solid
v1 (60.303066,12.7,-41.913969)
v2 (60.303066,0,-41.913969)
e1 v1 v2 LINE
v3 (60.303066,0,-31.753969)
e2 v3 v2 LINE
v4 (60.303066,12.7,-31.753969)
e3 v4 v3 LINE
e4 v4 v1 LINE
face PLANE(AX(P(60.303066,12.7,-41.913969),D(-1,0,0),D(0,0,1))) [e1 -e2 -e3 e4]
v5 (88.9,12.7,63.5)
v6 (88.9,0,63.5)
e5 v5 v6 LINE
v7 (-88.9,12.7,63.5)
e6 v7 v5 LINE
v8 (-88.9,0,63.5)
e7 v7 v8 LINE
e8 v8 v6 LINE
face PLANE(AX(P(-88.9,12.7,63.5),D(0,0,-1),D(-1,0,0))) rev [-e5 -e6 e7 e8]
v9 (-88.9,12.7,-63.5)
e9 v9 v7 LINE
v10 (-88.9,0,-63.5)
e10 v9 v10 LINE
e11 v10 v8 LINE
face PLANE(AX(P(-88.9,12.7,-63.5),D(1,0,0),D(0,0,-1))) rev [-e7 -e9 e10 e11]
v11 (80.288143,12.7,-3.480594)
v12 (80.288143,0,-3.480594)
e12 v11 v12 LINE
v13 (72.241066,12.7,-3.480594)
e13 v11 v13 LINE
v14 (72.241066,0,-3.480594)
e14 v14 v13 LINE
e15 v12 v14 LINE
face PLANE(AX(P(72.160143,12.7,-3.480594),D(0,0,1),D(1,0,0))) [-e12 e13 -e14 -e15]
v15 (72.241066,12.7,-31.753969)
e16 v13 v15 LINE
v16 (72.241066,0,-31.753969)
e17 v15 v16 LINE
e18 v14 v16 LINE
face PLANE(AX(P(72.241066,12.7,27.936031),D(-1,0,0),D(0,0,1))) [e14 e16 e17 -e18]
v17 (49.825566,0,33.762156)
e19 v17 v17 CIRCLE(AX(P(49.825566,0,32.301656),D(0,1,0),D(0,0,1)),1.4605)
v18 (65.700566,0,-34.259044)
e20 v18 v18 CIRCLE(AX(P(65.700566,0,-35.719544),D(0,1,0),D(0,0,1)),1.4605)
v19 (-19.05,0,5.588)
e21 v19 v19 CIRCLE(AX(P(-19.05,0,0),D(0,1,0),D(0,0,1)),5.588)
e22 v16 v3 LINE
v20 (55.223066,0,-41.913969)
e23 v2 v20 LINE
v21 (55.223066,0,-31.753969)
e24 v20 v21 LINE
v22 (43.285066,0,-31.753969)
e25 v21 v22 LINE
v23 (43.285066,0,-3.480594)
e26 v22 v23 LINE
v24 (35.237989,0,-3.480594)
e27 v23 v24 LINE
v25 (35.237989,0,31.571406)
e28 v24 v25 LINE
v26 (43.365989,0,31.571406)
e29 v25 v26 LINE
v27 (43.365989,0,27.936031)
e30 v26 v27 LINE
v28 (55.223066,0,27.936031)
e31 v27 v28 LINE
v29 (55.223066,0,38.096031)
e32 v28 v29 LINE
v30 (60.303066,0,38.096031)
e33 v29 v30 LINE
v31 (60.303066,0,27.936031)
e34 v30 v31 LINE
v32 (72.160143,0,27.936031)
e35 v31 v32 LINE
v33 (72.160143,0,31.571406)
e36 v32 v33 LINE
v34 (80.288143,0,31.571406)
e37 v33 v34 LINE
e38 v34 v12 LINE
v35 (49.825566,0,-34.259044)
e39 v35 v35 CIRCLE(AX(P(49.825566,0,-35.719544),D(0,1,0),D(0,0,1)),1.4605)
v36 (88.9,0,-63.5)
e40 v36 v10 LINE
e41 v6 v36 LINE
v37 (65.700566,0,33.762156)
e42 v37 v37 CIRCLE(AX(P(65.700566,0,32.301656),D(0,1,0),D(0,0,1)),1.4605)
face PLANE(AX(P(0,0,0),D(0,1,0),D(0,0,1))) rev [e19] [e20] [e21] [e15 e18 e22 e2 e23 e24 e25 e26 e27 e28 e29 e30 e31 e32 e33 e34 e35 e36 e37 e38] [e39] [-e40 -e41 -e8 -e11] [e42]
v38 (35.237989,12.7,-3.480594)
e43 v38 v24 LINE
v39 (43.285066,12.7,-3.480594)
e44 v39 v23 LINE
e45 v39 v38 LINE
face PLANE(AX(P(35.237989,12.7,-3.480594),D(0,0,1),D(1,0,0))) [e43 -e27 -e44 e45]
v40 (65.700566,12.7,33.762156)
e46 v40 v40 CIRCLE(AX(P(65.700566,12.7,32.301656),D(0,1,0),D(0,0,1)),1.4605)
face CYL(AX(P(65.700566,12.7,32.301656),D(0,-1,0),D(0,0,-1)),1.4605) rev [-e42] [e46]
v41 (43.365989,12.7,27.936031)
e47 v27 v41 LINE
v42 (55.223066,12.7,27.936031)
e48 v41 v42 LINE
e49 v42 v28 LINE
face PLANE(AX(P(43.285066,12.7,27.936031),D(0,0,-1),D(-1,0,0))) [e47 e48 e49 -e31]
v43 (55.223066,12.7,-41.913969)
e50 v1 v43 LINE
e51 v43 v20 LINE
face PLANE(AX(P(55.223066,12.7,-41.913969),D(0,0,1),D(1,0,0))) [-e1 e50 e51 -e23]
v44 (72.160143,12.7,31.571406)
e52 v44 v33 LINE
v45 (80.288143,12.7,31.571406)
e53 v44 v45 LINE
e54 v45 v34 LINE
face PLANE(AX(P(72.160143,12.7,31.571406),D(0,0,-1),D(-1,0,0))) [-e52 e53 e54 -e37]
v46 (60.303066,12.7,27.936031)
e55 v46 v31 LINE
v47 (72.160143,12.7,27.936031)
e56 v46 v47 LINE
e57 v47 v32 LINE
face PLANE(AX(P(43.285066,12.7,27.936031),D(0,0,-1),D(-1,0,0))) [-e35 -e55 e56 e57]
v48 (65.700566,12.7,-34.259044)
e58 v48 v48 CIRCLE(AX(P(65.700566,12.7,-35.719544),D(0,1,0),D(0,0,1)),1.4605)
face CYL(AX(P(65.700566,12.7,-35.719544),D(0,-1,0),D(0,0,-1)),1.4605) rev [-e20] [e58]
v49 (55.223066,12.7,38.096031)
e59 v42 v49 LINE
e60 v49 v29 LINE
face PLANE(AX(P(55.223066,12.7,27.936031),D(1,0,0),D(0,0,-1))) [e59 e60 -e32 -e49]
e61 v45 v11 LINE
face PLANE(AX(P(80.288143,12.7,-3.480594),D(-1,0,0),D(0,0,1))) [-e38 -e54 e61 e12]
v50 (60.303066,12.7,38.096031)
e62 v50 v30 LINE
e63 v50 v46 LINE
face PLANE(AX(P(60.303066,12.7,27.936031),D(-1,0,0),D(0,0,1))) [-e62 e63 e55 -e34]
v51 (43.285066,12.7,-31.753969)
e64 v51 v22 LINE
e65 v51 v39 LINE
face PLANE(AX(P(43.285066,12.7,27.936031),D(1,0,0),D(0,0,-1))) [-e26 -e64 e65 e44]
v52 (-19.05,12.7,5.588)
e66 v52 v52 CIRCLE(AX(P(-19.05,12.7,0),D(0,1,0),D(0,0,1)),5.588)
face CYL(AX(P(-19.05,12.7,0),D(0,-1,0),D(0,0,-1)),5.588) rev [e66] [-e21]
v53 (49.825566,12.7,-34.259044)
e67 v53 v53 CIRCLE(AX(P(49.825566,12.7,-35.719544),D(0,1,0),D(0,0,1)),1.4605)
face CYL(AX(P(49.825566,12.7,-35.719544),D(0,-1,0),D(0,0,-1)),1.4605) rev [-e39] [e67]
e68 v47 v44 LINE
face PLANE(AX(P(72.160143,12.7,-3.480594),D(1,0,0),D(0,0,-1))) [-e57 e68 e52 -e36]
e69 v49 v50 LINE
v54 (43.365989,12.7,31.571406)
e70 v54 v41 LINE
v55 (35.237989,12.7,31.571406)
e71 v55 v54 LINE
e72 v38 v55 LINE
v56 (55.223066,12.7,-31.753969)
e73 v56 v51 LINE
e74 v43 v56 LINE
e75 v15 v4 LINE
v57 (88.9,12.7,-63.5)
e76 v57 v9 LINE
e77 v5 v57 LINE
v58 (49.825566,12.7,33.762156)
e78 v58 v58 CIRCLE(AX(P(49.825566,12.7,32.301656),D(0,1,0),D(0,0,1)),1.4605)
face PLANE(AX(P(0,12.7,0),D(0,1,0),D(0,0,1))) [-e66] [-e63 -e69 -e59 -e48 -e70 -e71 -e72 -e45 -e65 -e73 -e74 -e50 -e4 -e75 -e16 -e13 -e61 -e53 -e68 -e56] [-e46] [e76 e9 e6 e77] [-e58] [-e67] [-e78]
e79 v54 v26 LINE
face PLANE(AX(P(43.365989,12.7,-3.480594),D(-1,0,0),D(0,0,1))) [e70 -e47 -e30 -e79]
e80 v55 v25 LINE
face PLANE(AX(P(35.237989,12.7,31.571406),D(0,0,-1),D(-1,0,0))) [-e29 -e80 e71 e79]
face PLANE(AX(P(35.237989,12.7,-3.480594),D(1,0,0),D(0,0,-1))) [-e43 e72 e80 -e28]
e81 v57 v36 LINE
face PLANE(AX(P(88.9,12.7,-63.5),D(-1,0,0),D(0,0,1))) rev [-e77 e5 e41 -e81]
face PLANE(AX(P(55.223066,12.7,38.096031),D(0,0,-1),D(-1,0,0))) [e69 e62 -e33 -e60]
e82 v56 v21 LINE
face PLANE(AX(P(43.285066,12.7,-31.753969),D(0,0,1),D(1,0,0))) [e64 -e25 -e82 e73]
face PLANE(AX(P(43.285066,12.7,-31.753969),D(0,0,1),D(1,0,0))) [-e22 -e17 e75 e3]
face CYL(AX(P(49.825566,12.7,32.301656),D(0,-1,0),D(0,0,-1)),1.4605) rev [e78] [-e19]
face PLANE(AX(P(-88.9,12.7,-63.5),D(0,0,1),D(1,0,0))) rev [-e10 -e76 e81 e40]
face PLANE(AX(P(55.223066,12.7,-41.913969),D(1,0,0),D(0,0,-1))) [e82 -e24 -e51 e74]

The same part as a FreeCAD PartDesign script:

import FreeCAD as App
import Part
import Sketcher

V = App.Vector
Q = App.Units.Quantity


def add_polygon(sketch, points):
    """Adds a closed chain of lines whose ends are joined by coincident constraints."""
    first, n = sketch.GeometryCount, len(points)
    for a, b in zip(points, points[1:] + points[:1]):
        sketch.addGeometry(Part.LineSegment(App.Vector(*a, 0), App.Vector(*b, 0)), False)
    for i in range(n):
        sketch.addConstraint(Sketcher.Constraint("Coincident", first + i, 2, first + (i + 1) % n, 1))

doc = App.newDocument("Part")
params = doc.addObject("Spreadsheet::Sheet", "Params")
for row, (alias, value) in enumerate([
    ("sketch1_diameter", "0.44 in"),
    ("sketch1_width", "7 in"),
    ("sketch1_height", "5 in"),
    ("sketch1_diameter2", "0.115 in"),
    ("sketch1_width2", "1.14 in"),
    ("pad1_length", "0.5 in"),
    ("sketch2_width", "0.2 in"),
    ("sketch2_height", "0.4 in"),
    ("sketch2_width2", "0.32 in"),
    ("sketch2_height2", "1.38 in"),
], start=1):
    params.set(f"A{row}", alias)
    params.set(f"B{row}", "=" + value)
    params.setAlias(f"B{row}", alias)

body = doc.addObject("PartDesign::Body", "Body")

sketch1 = body.newObject("Sketcher::SketchObject", "Sketch")
sketch1.AttachmentSupport = (doc.getObject("XZ_Plane"), [""])
sketch1.MapMode = "FlatFace"
add_polygon(sketch1, [(-88.9, -63.5), (-88.9, 63.5), (88.9, 63.5), (88.9, -63.5)])
sketch1.addGeometry(Part.Circle(V(-19.1, 0, 0), V(0, 0, 1), 5.6), False)
sketch1.addGeometry(Part.Circle(V(49.8, 32.3, 0), V(0, 0, 1), 1.5), False)
sketch1.addGeometry(Part.Circle(V(65.7, 32.3, 0), V(0, 0, 1), 1.5), False)
add_polygon(sketch1, [(72.2, 27.9), (43.3, 27.9), (43.3, -31.8), (72.2, -31.8)])
sketch1.addGeometry(Part.Circle(V(49.8, -35.7, 0), V(0, 0, 1), 1.5), False)
sketch1.addGeometry(Part.Circle(V(65.7, -35.7, 0), V(0, 0, 1), 1.5), False)
sketch1.addConstraint([
    Sketcher.Constraint("Vertical", 0),
    Sketcher.Constraint("Horizontal", 1),
    Sketcher.Constraint("Vertical", 2),
    Sketcher.Constraint("Horizontal", 3),
    Sketcher.Constraint("Horizontal", 7),
    Sketcher.Constraint("Vertical", 8),
    Sketcher.Constraint("Horizontal", 9),
    Sketcher.Constraint("Vertical", 10),
    Sketcher.Constraint("Equal", 5, 6),
    Sketcher.Constraint("Equal", 6, 11),
    Sketcher.Constraint("Equal", 11, 12),
    Sketcher.Constraint("Symmetric", 0, 2, 2, 2, -1, 1),
    Sketcher.Constraint("PointOnObject", 4, 3, -1),
    Sketcher.Constraint("Horizontal", 5, 3, 6, 3),
    Sketcher.Constraint("Horizontal", 11, 3, 12, 3),
    Sketcher.Constraint("Vertical", 5, 3, 11, 3),
    Sketcher.Constraint("Vertical", 6, 3, 12, 3),
    Sketcher.Constraint("Diameter", 4, Q("0.44 in")),
    Sketcher.Constraint("DistanceX", 1, 1, 1, 2, Q("7 in")),
    Sketcher.Constraint("DistanceY", 0, 1, 0, 2, Q("5 in")),
    Sketcher.Constraint("Diameter", 5, Q("0.115 in")),
    Sketcher.Constraint("DistanceX", 7, 2, 7, 1, Q("1.14 in")),
    Sketcher.Constraint("DistanceY", 8, 2, 8, 1, Q("2.35 in")),
    Sketcher.Constraint("DistanceX", 4, 3, -1, 1, Q("0.75 in")),
    Sketcher.Constraint("DistanceX", 5, 3, 6, 3, Q("0.625 in")),
    Sketcher.Constraint("DistanceY", 11, 3, 5, 3, Q("2.678 in")),
    Sketcher.Constraint("DistanceY", 7, 2, 5, 3, Q("0.171875 in")),
    Sketcher.Constraint("DistanceX", 7, 2, 5, 3, Q("0.2575 in")),
    Sketcher.Constraint("DistanceY", -1, 1, 7, 2, Q("27.936031 mm")),
    Sketcher.Constraint("DistanceX", -1, 1, 5, 3, Q("49.825566 mm")),
])
sketch1.setExpression("Constraints[25]", "Params.sketch1_diameter")
sketch1.setExpression("Constraints[26]", "Params.sketch1_width")
sketch1.setExpression("Constraints[27]", "Params.sketch1_height")
sketch1.setExpression("Constraints[28]", "Params.sketch1_diameter2")
sketch1.setExpression("Constraints[29]", "Params.sketch1_width2")
pad1 = body.newObject("PartDesign::Pad", "Pad")
pad1.Profile = sketch1
pad1.setExpression("Length", "Params.pad1_length")
pad1.Reversed = True

sketch2 = body.newObject("Sketcher::SketchObject", "Sketch001")
sketch2.AttachmentSupport = (doc.getObject("XZ_Plane"), [""])
sketch2.MapMode = "FlatFace"
add_polygon(sketch2, [(35, -3), (35, 32), (43, 32), (43, -3)])
add_polygon(sketch2, [(72, -3), (72, 32), (80, 32), (80, -3)])
add_polygon(sketch2, [(55, 28), (55, 38), (60, 38), (60, 28)])
add_polygon(sketch2, [(55, -42), (55, -32), (60, -32), (60, -42)])
sketch2.addConstraint([
    Sketcher.Constraint("Vertical", 0),
    Sketcher.Constraint("Horizontal", 1),
    Sketcher.Constraint("Vertical", 2),
    Sketcher.Constraint("Horizontal", 3),
    Sketcher.Constraint("Vertical", 4),
    Sketcher.Constraint("Horizontal", 5),
    Sketcher.Constraint("Vertical", 6),
    Sketcher.Constraint("Horizontal", 7),
    Sketcher.Constraint("Vertical", 8),
    Sketcher.Constraint("Horizontal", 9),
    Sketcher.Constraint("Vertical", 10),
    Sketcher.Constraint("Horizontal", 11),
    Sketcher.Constraint("Vertical", 12),
    Sketcher.Constraint("Horizontal", 13),
    Sketcher.Constraint("Vertical", 14),
    Sketcher.Constraint("Horizontal", 15),
    Sketcher.Constraint("Horizontal", 1, 2, 4, 2),
    Sketcher.Constraint("Horizontal", 3, 2, 6, 2),
    Sketcher.Constraint("Vertical", 11, 2, 12, 2),
    Sketcher.Constraint("Vertical", 10, 2, 13, 2),
    Sketcher.Constraint("Equal", 3, 5),
    Sketcher.Constraint("Equal", 10, 12),
    Sketcher.Constraint("DistanceX", 9, 1, 9, 2, Q("0.2 in")),
    Sketcher.Constraint("DistanceY", 8, 1, 8, 2, Q("0.4 in")),
    Sketcher.Constraint("DistanceX", 1, 1, 1, 2, Q("0.32 in")),
    Sketcher.Constraint("DistanceY", 0, 1, 0, 2, Q("1.38 in")),
    Sketcher.Constraint("DistanceY", 12, 2, 11, 2, Q("2.35 in")),
    Sketcher.Constraint("DistanceX", -1, 1, 0, 2, Q("35.237989 mm")),
    Sketcher.Constraint("DistanceY", -1, 1, 8, 2, Q("38.096031 mm")),
    Sketcher.Constraint("DistanceY", -1, 1, 0, 2, Q("31.571406 mm")),
    Sketcher.Constraint("DistanceX", -1, 1, 4, 2, Q("72.160143 mm")),
    Sketcher.Constraint("DistanceX", -1, 1, 8, 2, Q("55.223066 mm")),
])
sketch2.setExpression("Constraints[38]", "Params.sketch2_width")
sketch2.setExpression("Constraints[39]", "Params.sketch2_height")
sketch2.setExpression("Constraints[40]", "Params.sketch2_width2")
sketch2.setExpression("Constraints[41]", "Params.sketch2_height2")
pocket1 = body.newObject("PartDesign::Pocket", "Pocket")
pocket1.Profile = sketch2
pocket1.Type = "ThroughAll"

doc.recompute()
